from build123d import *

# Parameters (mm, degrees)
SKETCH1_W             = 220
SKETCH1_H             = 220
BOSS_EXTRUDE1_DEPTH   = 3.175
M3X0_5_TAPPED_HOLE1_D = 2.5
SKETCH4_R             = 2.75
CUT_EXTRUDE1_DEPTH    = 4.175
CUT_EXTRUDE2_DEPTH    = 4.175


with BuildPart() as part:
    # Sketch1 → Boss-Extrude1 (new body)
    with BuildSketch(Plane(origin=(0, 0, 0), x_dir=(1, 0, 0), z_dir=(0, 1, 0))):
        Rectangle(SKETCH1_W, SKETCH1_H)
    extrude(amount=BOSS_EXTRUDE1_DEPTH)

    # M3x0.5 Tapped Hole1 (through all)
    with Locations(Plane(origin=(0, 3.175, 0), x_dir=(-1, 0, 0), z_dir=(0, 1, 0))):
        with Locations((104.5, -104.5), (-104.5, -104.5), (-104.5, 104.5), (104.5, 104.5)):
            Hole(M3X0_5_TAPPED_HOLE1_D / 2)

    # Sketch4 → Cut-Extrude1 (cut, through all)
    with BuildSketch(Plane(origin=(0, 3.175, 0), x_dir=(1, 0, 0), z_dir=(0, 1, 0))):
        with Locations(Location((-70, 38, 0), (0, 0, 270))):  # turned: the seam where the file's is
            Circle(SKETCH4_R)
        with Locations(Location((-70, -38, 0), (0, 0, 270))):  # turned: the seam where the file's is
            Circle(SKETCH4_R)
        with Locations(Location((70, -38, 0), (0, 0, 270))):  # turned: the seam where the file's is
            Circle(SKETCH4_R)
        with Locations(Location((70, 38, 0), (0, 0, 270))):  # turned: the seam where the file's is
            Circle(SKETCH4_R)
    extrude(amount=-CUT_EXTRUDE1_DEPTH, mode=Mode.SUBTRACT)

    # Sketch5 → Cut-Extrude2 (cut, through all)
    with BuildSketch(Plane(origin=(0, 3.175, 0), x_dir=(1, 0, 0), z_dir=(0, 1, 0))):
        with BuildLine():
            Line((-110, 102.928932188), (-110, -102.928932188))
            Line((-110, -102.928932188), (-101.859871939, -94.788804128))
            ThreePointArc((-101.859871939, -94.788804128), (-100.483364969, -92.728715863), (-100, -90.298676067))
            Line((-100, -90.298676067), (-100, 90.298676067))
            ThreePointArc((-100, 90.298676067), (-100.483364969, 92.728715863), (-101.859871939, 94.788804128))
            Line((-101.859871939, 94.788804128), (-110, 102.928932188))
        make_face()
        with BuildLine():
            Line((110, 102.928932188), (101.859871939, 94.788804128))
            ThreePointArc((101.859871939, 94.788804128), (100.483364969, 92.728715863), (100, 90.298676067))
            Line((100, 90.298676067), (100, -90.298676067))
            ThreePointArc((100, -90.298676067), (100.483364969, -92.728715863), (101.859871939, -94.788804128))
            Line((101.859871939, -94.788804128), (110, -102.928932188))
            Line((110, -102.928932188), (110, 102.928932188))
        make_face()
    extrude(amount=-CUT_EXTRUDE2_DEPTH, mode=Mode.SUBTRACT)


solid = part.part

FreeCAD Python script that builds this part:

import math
import FreeCAD as App
import Part
import Sketcher
Q = App.Units.Quantity


def add_polygon(sketch, points):
    """Adds a closed chain of lines whose ends are joined by coincident constraints."""
    first, n = sketch.GeometryCount, len(points)
    for a, b in zip(points, points[1:] + points[:1]):
        sketch.addGeometry(Part.LineSegment(App.Vector(*a, 0), App.Vector(*b, 0)), False)
    for i in range(n):
        sketch.addConstraint(Sketcher.Constraint("Coincident", first + i, 2, first + (i + 1) % n, 1))

doc = App.newDocument("Part")
body = doc.addObject("PartDesign::Body", "Body")

sketch1 = doc.addObject("Sketcher::SketchObject", "Sketch")
body.addObject(sketch1)
sketch1.AttachmentSupport = (doc.XZ_Plane, [""])
sketch1.MapMode = "FlatFace"
add_polygon(sketch1, [(-110, -110), (-110, 110), (110, 110), (110, -110)])
sketch1.addConstraint([
    Sketcher.Constraint("Vertical", 0),
    Sketcher.Constraint("Horizontal", 1),
    Sketcher.Constraint("Vertical", 2),
    Sketcher.Constraint("Horizontal", 3),
    Sketcher.Constraint("Symmetric", 0, 2, 2, 2, -1, 1),
    Sketcher.Constraint("Equal", 3, 0),
    Sketcher.Constraint("DistanceX", 1, 1, 1, 2, Q("220 mm")),
])
pad1 = doc.addObject("PartDesign::Pad", "Pad")
body.addObject(pad1)
pad1.Profile = sketch1
pad1.Length = 3.175
pad1.Reversed = True

sketch2 = doc.addObject("Sketcher::SketchObject", "Sketch001")
body.addObject(sketch2)
sketch2.AttachmentSupport = (doc.XZ_Plane, [""])
sketch2.MapMode = "FlatFace"
sketch2.AttachmentOffset = App.Placement(App.Vector(0, 0, -3.175), App.Rotation())
sketch2.addGeometry([
    Part.Circle(App.Vector(-104.5, -104.5, 0), App.Vector(0, 0, 1), 1.25),
    Part.Circle(App.Vector(104.5, -104.5, 0), App.Vector(0, 0, 1), 1.25),
    Part.Circle(App.Vector(104.5, 104.5, 0), App.Vector(0, 0, 1), 1.25),
    Part.Circle(App.Vector(-104.5, 104.5, 0), App.Vector(0, 0, 1), 1.25),
], False)
sketch2.addConstraint([
    Sketcher.Constraint("Equal", 0, 1),
    Sketcher.Constraint("Equal", 1, 2),
    Sketcher.Constraint("Equal", 2, 3),
    Sketcher.Constraint("Symmetric", 0, 3, 2, 3, -1, 1),
    Sketcher.Constraint("Symmetric", 1, 3, 3, 3, -1, 1),
    Sketcher.Constraint("Symmetric", 0, 3, 1, 3, -2),
    Sketcher.Constraint("Diameter", 0, Q("2.5 mm")),
    Sketcher.Constraint("DistanceX", 0, 3, 1, 3, Q("209 mm")),
    Sketcher.Constraint("DistanceY", 1, 3, 2, 3, Q("209 mm")),
])
doc.recompute()
hole = doc.addObject("PartDesign::Hole", "Hole")
body.addObject(hole)
hole.Profile = sketch2
hole.ThreadType = "None"
hole.Diameter = 2.5
hole.DepthType = "ThroughAll"
hole.Reversed = True

sketch3 = doc.addObject("Sketcher::SketchObject", "Sketch002")
body.addObject(sketch3)
sketch3.AttachmentSupport = (doc.XZ_Plane, [""])
sketch3.MapMode = "FlatFace"
sketch3.AttachmentOffset = App.Placement(App.Vector(0, 0, -3.175), App.Rotation())
sketch3.addGeometry([
    Part.Circle(App.Vector(-70, -38, 0), App.Vector(0, 0, 1), 2.75),
    Part.Circle(App.Vector(-70, 38, 0), App.Vector(0, 0, 1), 2.75),
    Part.Circle(App.Vector(70, 38, 0), App.Vector(0, 0, 1), 2.75),
    Part.Circle(App.Vector(70, -38, 0), App.Vector(0, 0, 1), 2.75),
], False)
sketch3.addConstraint([
    Sketcher.Constraint("Equal", 0, 1),
    Sketcher.Constraint("Equal", 1, 2),
    Sketcher.Constraint("Equal", 2, 3),
    Sketcher.Constraint("Symmetric", 0, 3, 2, 3, -1, 1),
    Sketcher.Constraint("Symmetric", 1, 3, 3, 3, -1, 1),
    Sketcher.Constraint("Symmetric", 1, 3, 2, 3, -2),
    Sketcher.Constraint("Diameter", 0, Q("5.5 mm")),
    Sketcher.Constraint("DistanceX", 0, 3, -1, 1, Q("70 mm")),
    Sketcher.Constraint("DistanceY", 0, 3, -1, 1, Q("38 mm")),
])
pocket1 = doc.addObject("PartDesign::Pocket", "Pocket")
body.addObject(pocket1)
pocket1.Profile = sketch3
pocket1.Type = "ThroughAll"
pocket1.Reversed = True

sketch4 = doc.addObject("Sketcher::SketchObject", "Sketch003")
body.addObject(sketch4)
sketch4.AttachmentSupport = (doc.XZ_Plane, [""])
sketch4.MapMode = "FlatFace"
sketch4.AttachmentOffset = App.Placement(App.Vector(0, 0, -3.175), App.Rotation())
sketch4.addGeometry([
    Part.LineSegment(App.Vector(-110, -102.928932, 0), App.Vector(-110, 102.928932, 0)),
    Part.LineSegment(App.Vector(-110, 102.928932, 0), App.Vector(-101.859872, 94.788804, 0)),
    Part.ArcOfCircle(Part.Circle(App.Vector(-106.35, 90.298676, 0), App.Vector(0, 0, 1), 6.35), math.radians(0), math.radians(45)),
    Part.LineSegment(App.Vector(-100, 90.298676, 0), App.Vector(-100, -90.298676, 0)),
    Part.ArcOfCircle(Part.Circle(App.Vector(-106.35, -90.298676, 0), App.Vector(0, 0, 1), 6.35), math.radians(-45), math.radians(0)),
    Part.LineSegment(App.Vector(-101.859872, -94.788804, 0), App.Vector(-110, -102.928932, 0)),
    Part.LineSegment(App.Vector(110, -102.928932, 0), App.Vector(101.859872, -94.788804, 0)),
    Part.ArcOfCircle(Part.Circle(App.Vector(106.35, -90.298676, 0), App.Vector(0, 0, 1), 6.35), math.radians(-180), math.radians(-135)),
    Part.LineSegment(App.Vector(100, -90.298676, 0), App.Vector(100, 90.298676, 0)),
    Part.ArcOfCircle(Part.Circle(App.Vector(106.35, 90.298676, 0), App.Vector(0, 0, 1), 6.35), math.radians(135), math.radians(180)),
    Part.LineSegment(App.Vector(101.859872, 94.788804, 0), App.Vector(110, 102.928932, 0)),
    Part.LineSegment(App.Vector(110, 102.928932, 0), App.Vector(110, -102.928932, 0)),
], False)
sketch4.addConstraint([
    Sketcher.Constraint("Coincident", 0, 2, 1, 1),
    Sketcher.Constraint("Tangent", 1, 2, 2, 2),
    Sketcher.Constraint("Tangent", 2, 1, 3, 1),
    Sketcher.Constraint("Tangent", 3, 2, 4, 2),
    Sketcher.Constraint("Tangent", 4, 1, 5, 1),
    Sketcher.Constraint("Coincident", 5, 2, 0, 1),
    Sketcher.Constraint("Tangent", 6, 2, 7, 2),
    Sketcher.Constraint("Tangent", 7, 1, 8, 1),
    Sketcher.Constraint("Tangent", 8, 2, 9, 2),
    Sketcher.Constraint("Tangent", 9, 1, 10, 1),
    Sketcher.Constraint("Coincident", 10, 2, 11, 1),
    Sketcher.Constraint("Coincident", 11, 2, 6, 1),
    Sketcher.Constraint("Vertical", 0),
    Sketcher.Constraint("Vertical", 3),
    Sketcher.Constraint("Vertical", 8),
    Sketcher.Constraint("Vertical", 11),
    Sketcher.Constraint("Equal", 2, 4),
    Sketcher.Constraint("Equal", 4, 7),
    Sketcher.Constraint("Equal", 7, 9),
    Sketcher.Constraint("Symmetric", 2, 3, 7, 3, -1, 1),
    Sketcher.Constraint("Symmetric", 4, 1, 9, 1, -1, 1),
    Sketcher.Constraint("Symmetric", 0, 2, 11, 2, -1, 1),
    Sketcher.Constraint("Symmetric", 4, 1, 6, 2, -2),
    Sketcher.Constraint("Perpendicular", 1, 5),
    Sketcher.Constraint("Radius", 2, Q("6.35 mm")),
    Sketcher.Constraint("DistanceX", 0, 2, -1, 1, Q("110 mm")),
    Sketcher.Constraint("DistanceX", 2, 1, -1, 1, Q("100 mm")),
    Sketcher.Constraint("DistanceY", 0, 1, 0, 2, Q("205.857864 mm")),
])
pocket2 = doc.addObject("PartDesign::Pocket", "Pocket001")
body.addObject(pocket2)
pocket2.Profile = sketch4
pocket2.Type = "ThroughAll"
pocket2.Reversed = True

doc.recompute()
